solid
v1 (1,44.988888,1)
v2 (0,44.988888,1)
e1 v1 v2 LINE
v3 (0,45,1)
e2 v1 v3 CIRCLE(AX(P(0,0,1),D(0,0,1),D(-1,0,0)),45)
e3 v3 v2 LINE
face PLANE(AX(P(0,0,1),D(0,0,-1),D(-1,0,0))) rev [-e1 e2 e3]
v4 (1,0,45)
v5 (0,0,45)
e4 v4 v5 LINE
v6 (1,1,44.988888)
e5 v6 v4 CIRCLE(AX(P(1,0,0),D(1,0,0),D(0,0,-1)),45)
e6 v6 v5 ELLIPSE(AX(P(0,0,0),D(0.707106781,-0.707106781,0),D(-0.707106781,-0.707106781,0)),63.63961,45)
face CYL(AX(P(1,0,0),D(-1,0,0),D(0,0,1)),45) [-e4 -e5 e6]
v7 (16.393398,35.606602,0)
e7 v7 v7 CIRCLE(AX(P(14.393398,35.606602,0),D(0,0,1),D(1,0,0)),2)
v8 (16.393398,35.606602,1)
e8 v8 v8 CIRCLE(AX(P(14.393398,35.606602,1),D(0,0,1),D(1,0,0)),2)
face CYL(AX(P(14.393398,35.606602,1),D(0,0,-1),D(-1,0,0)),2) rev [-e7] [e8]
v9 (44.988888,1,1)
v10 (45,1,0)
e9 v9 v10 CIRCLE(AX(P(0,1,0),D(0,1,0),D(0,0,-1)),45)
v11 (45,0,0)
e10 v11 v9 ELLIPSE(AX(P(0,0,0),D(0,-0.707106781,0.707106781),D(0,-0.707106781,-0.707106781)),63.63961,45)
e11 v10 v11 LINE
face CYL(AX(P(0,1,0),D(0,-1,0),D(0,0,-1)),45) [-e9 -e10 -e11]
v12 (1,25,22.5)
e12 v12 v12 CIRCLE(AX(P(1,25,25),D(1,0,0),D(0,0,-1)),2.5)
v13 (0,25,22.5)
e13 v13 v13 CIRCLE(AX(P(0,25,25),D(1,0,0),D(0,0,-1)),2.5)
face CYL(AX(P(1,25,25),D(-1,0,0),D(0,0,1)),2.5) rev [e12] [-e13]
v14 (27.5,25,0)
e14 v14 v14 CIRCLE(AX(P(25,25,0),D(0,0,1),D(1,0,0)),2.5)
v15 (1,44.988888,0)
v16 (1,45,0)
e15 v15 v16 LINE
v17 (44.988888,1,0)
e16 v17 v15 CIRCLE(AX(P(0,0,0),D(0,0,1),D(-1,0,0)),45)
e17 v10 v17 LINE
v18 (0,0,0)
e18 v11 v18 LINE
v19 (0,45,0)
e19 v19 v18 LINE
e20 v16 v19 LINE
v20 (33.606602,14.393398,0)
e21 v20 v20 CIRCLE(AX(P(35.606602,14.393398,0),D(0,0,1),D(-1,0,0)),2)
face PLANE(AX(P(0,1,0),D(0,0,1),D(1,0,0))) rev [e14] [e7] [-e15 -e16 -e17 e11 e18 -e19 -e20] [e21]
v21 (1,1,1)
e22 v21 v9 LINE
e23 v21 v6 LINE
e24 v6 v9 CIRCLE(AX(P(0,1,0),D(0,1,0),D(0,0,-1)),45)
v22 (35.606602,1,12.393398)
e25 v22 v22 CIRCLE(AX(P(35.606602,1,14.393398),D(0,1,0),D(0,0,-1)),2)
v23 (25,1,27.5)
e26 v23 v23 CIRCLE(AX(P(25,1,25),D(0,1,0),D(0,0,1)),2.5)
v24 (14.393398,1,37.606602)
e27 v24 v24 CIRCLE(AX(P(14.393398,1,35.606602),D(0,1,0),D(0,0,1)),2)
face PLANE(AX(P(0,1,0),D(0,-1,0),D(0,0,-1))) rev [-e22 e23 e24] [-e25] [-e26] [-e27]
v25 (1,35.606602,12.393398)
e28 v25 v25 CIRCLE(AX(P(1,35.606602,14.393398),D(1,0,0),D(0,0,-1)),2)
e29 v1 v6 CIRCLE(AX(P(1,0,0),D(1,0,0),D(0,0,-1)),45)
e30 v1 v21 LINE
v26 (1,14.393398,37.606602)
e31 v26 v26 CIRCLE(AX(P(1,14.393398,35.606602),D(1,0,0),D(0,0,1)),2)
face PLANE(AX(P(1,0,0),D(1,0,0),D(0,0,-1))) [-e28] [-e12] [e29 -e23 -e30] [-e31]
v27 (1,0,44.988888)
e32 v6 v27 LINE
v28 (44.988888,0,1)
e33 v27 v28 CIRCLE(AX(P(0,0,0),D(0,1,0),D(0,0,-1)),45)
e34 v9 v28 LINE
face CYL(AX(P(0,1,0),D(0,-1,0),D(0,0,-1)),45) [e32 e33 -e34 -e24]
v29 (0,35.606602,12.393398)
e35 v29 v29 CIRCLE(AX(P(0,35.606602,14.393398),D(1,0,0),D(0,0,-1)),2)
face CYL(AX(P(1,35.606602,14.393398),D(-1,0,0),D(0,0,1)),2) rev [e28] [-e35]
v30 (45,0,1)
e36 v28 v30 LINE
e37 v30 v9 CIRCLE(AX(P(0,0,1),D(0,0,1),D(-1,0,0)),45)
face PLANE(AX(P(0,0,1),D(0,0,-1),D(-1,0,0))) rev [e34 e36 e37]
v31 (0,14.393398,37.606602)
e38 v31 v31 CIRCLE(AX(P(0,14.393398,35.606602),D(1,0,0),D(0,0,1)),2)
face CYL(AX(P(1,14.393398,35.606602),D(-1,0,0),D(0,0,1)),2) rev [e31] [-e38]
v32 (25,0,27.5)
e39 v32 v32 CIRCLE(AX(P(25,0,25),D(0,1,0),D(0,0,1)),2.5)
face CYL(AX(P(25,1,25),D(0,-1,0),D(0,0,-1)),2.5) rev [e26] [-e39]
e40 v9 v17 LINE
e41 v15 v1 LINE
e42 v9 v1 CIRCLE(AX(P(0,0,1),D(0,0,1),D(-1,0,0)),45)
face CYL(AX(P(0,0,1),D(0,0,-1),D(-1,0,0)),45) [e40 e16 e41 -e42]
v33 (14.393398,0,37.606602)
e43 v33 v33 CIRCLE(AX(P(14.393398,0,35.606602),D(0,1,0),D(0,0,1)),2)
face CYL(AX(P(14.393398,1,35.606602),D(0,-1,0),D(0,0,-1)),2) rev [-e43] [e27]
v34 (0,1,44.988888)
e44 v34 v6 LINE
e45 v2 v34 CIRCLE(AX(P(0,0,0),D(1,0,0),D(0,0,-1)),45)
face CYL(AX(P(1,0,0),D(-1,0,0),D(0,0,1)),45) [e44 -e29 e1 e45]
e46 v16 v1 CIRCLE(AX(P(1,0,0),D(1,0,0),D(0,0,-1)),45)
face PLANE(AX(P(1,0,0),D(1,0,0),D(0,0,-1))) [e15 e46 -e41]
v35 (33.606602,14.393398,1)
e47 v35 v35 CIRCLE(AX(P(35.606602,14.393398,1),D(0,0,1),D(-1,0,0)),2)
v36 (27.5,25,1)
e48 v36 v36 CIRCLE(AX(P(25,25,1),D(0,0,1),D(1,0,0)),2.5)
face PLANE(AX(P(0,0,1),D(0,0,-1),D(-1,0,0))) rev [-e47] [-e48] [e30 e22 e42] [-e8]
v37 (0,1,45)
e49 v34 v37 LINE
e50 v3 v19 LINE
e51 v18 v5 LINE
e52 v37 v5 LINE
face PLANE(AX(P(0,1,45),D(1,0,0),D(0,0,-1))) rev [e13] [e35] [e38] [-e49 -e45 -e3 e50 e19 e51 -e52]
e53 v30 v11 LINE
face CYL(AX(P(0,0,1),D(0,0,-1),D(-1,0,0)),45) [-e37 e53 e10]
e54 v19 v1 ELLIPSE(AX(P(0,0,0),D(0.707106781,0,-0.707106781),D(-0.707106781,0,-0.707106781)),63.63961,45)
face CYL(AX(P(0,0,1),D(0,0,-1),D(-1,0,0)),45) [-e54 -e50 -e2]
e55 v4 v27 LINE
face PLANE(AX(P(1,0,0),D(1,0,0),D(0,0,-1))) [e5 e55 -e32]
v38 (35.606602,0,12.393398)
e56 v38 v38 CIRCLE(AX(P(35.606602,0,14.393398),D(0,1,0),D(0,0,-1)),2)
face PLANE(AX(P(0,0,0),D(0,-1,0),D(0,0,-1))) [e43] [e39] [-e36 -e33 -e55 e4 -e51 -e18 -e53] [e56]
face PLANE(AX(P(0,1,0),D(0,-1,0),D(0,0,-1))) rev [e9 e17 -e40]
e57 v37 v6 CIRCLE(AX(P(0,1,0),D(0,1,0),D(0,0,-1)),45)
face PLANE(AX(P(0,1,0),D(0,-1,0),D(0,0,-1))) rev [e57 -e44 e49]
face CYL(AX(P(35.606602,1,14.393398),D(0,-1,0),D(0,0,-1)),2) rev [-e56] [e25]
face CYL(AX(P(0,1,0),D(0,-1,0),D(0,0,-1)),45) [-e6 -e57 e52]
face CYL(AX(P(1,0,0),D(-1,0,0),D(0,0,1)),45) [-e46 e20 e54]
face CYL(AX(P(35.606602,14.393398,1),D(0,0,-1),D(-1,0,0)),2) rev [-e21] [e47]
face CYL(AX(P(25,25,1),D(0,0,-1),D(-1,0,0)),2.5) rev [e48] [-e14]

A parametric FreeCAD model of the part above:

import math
import FreeCAD as App
import Part
import Sketcher

V = App.Vector
Q = App.Units.Quantity

doc = App.newDocument("Part")
body = doc.addObject("PartDesign::Body", "Body")

# Sketch on XZ plane
sketch1 = body.newObject("Sketcher::SketchObject", "Sketch")
sketch1.AttachmentSupport = (doc.getObject("XZ_Plane"), [""])
sketch1.MapMode = "FlatFace"
sketch1.addGeometry([
    Part.LineSegment(V(0, 0, 0), V(0, 45, 0)),  # 0
    Part.ArcOfCircle(Part.Circle(V(0, 0, 0), V(0, 0, 1), 45), math.radians(0), math.radians(90)),  # 1
    Part.LineSegment(V(45, 0, 0), V(0, 0, 0)),  # 2
    Part.Circle(V(14.4, 35.6, 0), V(0, 0, 1), 2),  # 3
    Part.Circle(V(35.6, 14.4, 0), V(0, 0, 1), 2),  # 4
    Part.Circle(V(25, 25, 0), V(0, 0, 1), 2.5),  # 5
], False)
sketch1.addConstraint([
    Sketcher.Constraint("Coincident", 0, 2, 1, 2),
    Sketcher.Constraint("Coincident", 1, 1, 2, 1),
    Sketcher.Constraint("Coincident", 2, 2, 0, 1),
    Sketcher.Constraint("Vertical", 0),
    Sketcher.Constraint("Horizontal", 2),
    Sketcher.Constraint("Coincident", 1, 3, -1, 1),
    Sketcher.Constraint("Coincident", 2, 2, -1, 1),
    Sketcher.Constraint("Equal", 3, 4),
    Sketcher.Constraint("Diameter", 3, Q("4 mm")),
    Sketcher.Constraint("Diameter", 5, Q("5 mm")),
    Sketcher.Constraint("Radius", 1, Q("45 mm")),
    Sketcher.Constraint("DistanceX", -1, 1, 5, 3, Q("25 mm")),
    Sketcher.Constraint("DistanceY", -1, 1, 5, 3, Q("25 mm")),
    Sketcher.Constraint("DistanceX", -1, 1, 3, 3, Q("14.393398 mm")),
    Sketcher.Constraint("DistanceY", -1, 1, 3, 3, Q("35.606602 mm")),
    Sketcher.Constraint("DistanceX", -1, 1, 4, 3, Q("35.606602 mm")),
    Sketcher.Constraint("DistanceY", -1, 1, 4, 3, Q("14.393398 mm")),
])
pad1 = body.newObject("PartDesign::Pad", "Pad")
pad1.Profile = sketch1
pad1.Length = 1
pad1.Reversed = True

# Sketch on XY plane
sketch2 = body.newObject("Sketcher::SketchObject", "Sketch001")
sketch2.AttachmentSupport = (doc.getObject("XY_Plane"), [""])
sketch2.MapMode = "FlatFace"
sketch2.addGeometry([
    Part.LineSegment(V(0, 45, 0), V(0, 0, 0)),  # 0
    Part.LineSegment(V(0, 0, 0), V(45, 0, 0)),  # 1
    Part.ArcOfCircle(Part.Circle(V(0, 0, 0), V(0, 0, 1), 45), math.radians(0), math.radians(90)),  # 2
    Part.Circle(V(35.6, 14.4, 0), V(0, 0, 1), 2),  # 3
    Part.Circle(V(14.4, 35.6, 0), V(0, 0, 1), 2),  # 4
    Part.Circle(V(25, 25, 0), V(0, 0, 1), 2.5),  # 5
], False)
sketch2.addConstraint([
    Sketcher.Constraint("Coincident", 0, 2, 1, 1),
    Sketcher.Constraint("Coincident", 1, 2, 2, 1),
    Sketcher.Constraint("Coincident", 2, 2, 0, 1),
    Sketcher.Constraint("Vertical", 0),
    Sketcher.Constraint("Horizontal", 1),
    Sketcher.Constraint("Coincident", 2, 3, -1, 1),
    Sketcher.Constraint("Coincident", 0, 2, -1, 1),
    Sketcher.Constraint("Equal", 3, 4),
    Sketcher.Constraint("Diameter", 3, Q("4 mm")),
    Sketcher.Constraint("Diameter", 5, Q("5 mm")),
    Sketcher.Constraint("Radius", 2, Q("45 mm")),
    Sketcher.Constraint("DistanceX", -1, 1, 5, 3, Q("25 mm")),
    Sketcher.Constraint("DistanceY", -1, 1, 5, 3, Q("25 mm")),
    Sketcher.Constraint("DistanceX", -1, 1, 3, 3, Q("35.606602 mm")),
    Sketcher.Constraint("DistanceY", -1, 1, 3, 3, Q("14.393398 mm")),
    Sketcher.Constraint("DistanceX", -1, 1, 4, 3, Q("14.393398 mm")),
    Sketcher.Constraint("DistanceY", -1, 1, 4, 3, Q("35.606602 mm")),
])
pad2 = body.newObject("PartDesign::Pad", "Pad001")
pad2.Profile = sketch2
pad2.Length = 1

# Sketch on YZ plane
sketch3 = body.newObject("Sketcher::SketchObject", "Sketch002")
sketch3.AttachmentSupport = (doc.getObject("YZ_Plane"), [""])
sketch3.MapMode = "FlatFace"
sketch3.addGeometry([
    Part.LineSegment(V(0, 0, 0), V(45, 0, 0)),  # 0
    Part.ArcOfCircle(Part.Circle(V(0, 0, 0), V(0, 0, 1), 45), math.radians(0), math.radians(90)),  # 1
    Part.LineSegment(V(0, 45, 0), V(0, 0, 0)),  # 2
    Part.Circle(V(14.4, 35.6, 0), V(0, 0, 1), 2),  # 3
    Part.Circle(V(35.6, 14.4, 0), V(0, 0, 1), 2),  # 4
    Part.Circle(V(25, 25, 0), V(0, 0, 1), 2.5),  # 5
], False)
sketch3.addConstraint([
    Sketcher.Constraint("Coincident", 0, 2, 1, 1),
    Sketcher.Constraint("Coincident", 1, 2, 2, 1),
    Sketcher.Constraint("Coincident", 2, 2, 0, 1),
    Sketcher.Constraint("Horizontal", 0),
    Sketcher.Constraint("Vertical", 2),
    Sketcher.Constraint("Coincident", 1, 3, -1, 1),
    Sketcher.Constraint("Coincident", 2, 2, -1, 1),
    Sketcher.Constraint("Equal", 3, 4),
    Sketcher.Constraint("Diameter", 3, Q("4 mm")),
    Sketcher.Constraint("Diameter", 5, Q("5 mm")),
    Sketcher.Constraint("Radius", 1, Q("45 mm")),
    Sketcher.Constraint("DistanceX", -1, 1, 5, 3, Q("25 mm")),
    Sketcher.Constraint("DistanceY", -1, 1, 5, 3, Q("25 mm")),
    Sketcher.Constraint("DistanceX", -1, 1, 3, 3, Q("14.393398 mm")),
    Sketcher.Constraint("DistanceY", -1, 1, 3, 3, Q("35.606602 mm")),
    Sketcher.Constraint("DistanceX", -1, 1, 4, 3, Q("35.606602 mm")),
    Sketcher.Constraint("DistanceY", -1, 1, 4, 3, Q("14.393398 mm")),
])
pad3 = body.newObject("PartDesign::Pad", "Pad002")
pad3.Profile = sketch3
pad3.Length = 1

doc.recompute()
